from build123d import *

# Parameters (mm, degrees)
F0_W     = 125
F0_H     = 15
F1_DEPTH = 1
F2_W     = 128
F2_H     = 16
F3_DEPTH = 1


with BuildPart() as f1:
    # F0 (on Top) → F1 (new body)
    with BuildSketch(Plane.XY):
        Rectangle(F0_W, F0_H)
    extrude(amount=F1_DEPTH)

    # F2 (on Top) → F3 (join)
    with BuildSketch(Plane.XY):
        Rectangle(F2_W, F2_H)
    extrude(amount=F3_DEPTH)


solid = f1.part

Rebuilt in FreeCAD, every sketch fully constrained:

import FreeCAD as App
import Part
import Sketcher
from FreeCAD import Vector
Q = App.Units.Quantity


def add_polygon(sketch, points):
    """Adds a closed chain of lines whose ends are joined by coincident constraints."""
    first, n = sketch.GeometryCount, len(points)
    for a, b in zip(points, points[1:] + points[:1]):
        sketch.addGeometry(Part.LineSegment(App.Vector(*a, 0), App.Vector(*b, 0)), False)
    for i in range(n):
        sketch.addConstraint(Sketcher.Constraint("Coincident", first + i, 2, first + (i + 1) % n, 1))

doc = App.newDocument("Part")
params = doc.addObject("Spreadsheet::Sheet", "Params")
for row, (alias, value) in enumerate([
    ("sketch1_width", "125 mm"),
    ("sketch1_height", "15 mm"),
    ("pad1_length", "1 mm"),
    ("sketch2_width", "128 mm"),
    ("sketch2_height", "16 mm"),
    ("pad2_length", "1 mm"),
], start=1):
    params.set(f"A{row}", alias)
    params.set(f"B{row}", "=" + value)
    params.setAlias(f"B{row}", alias)

body = doc.addObject("PartDesign::Body", "Body")

# Sketch on XY plane
sketch1 = body.newObject("Sketcher::SketchObject", "Sketch")
sketch1.AttachmentSupport = (doc.getObject("XY_Plane"), [""])
sketch1.MapMode = "FlatFace"
add_polygon(sketch1, [(-62, 8), (-62, -8), (62, -8), (62, 8)])  # lines 0-3
sketch1.addConstraint([
    Sketcher.Constraint("Vertical", 0),
    Sketcher.Constraint("Horizontal", 1),
    Sketcher.Constraint("Vertical", 2),
    Sketcher.Constraint("Horizontal", 3),
    Sketcher.Constraint("Symmetric", 0, 2, 2, 2, -1, 1),
    Sketcher.Constraint("DistanceX", 1, 1, 1, 2, Q("125 mm")),
    Sketcher.Constraint("DistanceY", 0, 2, 0, 1, Q("15 mm")),
])
sketch1.setExpression("Constraints[9]", "Params.sketch1_width")
sketch1.setExpression("Constraints[10]", "Params.sketch1_height")
pad1 = body.newObject("PartDesign::Pad", "Pad")
pad1.Profile = sketch1
pad1.setExpression("Length", "Params.pad1_length")

# Sketch on XY plane
sketch2 = body.newObject("Sketcher::SketchObject", "Sketch001")
sketch2.AttachmentSupport = (doc.getObject("XY_Plane"), [""])
sketch2.MapMode = "FlatFace"
add_polygon(sketch2, [(-64, 8), (-64, -8), (64, -8), (64, 8)])  # lines 0-3
sketch2.addConstraint([
    Sketcher.Constraint("Vertical", 0),
    Sketcher.Constraint("Horizontal", 1),
    Sketcher.Constraint("Vertical", 2),
    Sketcher.Constraint("Horizontal", 3),
    Sketcher.Constraint("Symmetric", 0, 2, 2, 2, -1, 1),
    Sketcher.Constraint("DistanceX", 1, 1, 1, 2, Q("128 mm")),
    Sketcher.Constraint("DistanceY", 0, 2, 0, 1, Q("16 mm")),
])
sketch2.setExpression("Constraints[9]", "Params.sketch2_width")
sketch2.setExpression("Constraints[10]", "Params.sketch2_height")
pad2 = body.newObject("PartDesign::Pad", "Pad001")
pad2.Profile = sketch2
pad2.setExpression("Length", "Params.pad2_length")

doc.recompute()
